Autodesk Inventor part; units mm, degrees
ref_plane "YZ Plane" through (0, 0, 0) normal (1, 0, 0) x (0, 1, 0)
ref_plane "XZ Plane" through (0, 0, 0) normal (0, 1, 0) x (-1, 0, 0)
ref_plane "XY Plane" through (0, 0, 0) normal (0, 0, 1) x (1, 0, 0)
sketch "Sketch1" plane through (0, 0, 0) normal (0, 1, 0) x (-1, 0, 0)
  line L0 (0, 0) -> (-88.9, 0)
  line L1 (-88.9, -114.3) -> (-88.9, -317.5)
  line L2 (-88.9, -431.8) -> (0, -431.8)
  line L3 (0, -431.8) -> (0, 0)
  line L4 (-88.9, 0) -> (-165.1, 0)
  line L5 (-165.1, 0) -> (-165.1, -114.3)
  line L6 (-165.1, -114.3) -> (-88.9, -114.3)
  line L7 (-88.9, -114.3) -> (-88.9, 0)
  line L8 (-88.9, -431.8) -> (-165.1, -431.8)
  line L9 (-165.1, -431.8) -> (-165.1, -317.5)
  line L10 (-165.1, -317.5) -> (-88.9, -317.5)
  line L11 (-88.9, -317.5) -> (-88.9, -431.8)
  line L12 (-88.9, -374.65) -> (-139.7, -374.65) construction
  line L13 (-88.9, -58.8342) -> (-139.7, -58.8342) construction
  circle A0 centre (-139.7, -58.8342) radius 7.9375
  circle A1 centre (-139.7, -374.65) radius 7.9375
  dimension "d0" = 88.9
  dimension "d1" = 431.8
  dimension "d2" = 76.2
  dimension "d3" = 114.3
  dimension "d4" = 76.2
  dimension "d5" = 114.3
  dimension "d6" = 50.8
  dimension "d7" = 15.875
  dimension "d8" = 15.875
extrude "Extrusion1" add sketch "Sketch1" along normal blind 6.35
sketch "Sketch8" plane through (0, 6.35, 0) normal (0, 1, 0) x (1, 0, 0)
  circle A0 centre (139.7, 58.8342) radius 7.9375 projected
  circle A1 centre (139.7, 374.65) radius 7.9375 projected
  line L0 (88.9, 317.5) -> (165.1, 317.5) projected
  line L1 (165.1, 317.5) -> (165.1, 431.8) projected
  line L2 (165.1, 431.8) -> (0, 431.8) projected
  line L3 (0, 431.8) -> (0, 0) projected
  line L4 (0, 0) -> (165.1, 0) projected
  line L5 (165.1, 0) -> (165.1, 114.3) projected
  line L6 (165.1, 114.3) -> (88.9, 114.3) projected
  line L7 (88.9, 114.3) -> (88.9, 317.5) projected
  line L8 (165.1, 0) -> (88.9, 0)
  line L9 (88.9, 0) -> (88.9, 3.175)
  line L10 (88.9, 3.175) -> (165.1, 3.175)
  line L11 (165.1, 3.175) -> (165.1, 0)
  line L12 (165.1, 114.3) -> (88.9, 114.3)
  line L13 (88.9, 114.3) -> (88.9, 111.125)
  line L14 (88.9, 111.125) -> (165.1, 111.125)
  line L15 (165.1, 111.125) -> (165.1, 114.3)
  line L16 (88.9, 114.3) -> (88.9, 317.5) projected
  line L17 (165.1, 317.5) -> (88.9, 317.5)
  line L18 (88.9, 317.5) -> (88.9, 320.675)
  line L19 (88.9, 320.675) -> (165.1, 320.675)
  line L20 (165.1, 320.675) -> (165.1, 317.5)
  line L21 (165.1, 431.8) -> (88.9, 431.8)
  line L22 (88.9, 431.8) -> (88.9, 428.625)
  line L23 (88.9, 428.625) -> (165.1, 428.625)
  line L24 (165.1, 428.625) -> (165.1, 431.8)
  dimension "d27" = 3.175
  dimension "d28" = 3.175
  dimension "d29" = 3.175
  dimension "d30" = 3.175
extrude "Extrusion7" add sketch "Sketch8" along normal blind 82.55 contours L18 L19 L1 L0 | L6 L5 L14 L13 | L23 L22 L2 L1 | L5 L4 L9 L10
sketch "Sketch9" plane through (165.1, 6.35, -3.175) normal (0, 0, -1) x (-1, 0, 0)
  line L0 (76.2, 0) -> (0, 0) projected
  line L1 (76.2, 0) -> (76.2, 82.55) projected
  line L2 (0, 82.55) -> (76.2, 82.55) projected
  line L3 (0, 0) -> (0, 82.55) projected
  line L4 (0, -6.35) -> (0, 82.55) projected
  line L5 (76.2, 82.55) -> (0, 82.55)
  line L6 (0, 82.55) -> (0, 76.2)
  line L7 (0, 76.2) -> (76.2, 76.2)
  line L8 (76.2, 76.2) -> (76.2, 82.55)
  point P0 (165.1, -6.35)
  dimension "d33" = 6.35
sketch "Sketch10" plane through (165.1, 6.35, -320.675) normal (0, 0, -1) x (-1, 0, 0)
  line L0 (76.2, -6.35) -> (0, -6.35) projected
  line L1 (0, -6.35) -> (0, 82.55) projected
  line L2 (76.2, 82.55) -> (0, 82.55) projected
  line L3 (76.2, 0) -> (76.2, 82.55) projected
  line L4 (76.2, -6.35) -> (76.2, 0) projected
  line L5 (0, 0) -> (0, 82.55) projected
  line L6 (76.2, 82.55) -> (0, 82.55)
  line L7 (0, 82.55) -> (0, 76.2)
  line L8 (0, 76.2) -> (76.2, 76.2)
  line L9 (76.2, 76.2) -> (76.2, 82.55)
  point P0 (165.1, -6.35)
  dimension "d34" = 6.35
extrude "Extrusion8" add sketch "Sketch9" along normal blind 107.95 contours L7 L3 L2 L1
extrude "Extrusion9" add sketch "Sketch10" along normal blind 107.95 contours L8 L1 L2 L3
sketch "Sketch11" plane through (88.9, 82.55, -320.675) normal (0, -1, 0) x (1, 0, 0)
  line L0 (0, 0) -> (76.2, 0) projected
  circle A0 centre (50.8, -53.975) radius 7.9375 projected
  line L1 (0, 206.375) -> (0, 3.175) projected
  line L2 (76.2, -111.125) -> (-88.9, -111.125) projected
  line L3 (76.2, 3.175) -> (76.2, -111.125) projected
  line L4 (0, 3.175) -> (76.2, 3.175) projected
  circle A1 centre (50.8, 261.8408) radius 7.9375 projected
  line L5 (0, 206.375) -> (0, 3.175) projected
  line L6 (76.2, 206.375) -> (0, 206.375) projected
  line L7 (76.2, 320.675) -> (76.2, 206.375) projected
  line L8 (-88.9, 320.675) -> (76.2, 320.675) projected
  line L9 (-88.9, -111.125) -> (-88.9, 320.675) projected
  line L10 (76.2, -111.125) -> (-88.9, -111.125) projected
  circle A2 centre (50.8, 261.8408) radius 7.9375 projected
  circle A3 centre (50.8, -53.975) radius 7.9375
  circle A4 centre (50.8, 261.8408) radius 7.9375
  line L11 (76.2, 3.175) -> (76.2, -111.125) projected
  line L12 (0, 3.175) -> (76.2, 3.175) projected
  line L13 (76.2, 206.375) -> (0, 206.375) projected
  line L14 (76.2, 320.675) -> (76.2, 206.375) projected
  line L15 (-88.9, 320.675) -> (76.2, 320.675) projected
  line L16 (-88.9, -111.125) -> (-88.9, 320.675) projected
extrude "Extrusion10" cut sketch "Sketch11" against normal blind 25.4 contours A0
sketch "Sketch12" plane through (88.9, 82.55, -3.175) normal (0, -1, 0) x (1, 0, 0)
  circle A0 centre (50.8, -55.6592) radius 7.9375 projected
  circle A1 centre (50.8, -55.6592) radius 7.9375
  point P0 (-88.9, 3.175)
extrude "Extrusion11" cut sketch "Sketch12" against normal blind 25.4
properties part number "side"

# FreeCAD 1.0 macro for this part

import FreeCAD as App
import Part
import Sketcher
Q = App.Units.Quantity


def add_polygon(sketch, points):
    """Adds a closed chain of lines whose ends are joined by coincident constraints."""
    first, n = sketch.GeometryCount, len(points)
    for a, b in zip(points, points[1:] + points[:1]):
        sketch.addGeometry(Part.LineSegment(App.Vector(*a, 0), App.Vector(*b, 0)), False)
    for i in range(n):
        sketch.addConstraint(Sketcher.Constraint("Coincident", first + i, 2, first + (i + 1) % n, 1))

doc = App.newDocument("Part")
params = doc.addObject("Spreadsheet::Sheet", "Params")
for row, (alias, value) in enumerate([
    ("sketch1_width", "3 in"),
    ("sketch1_height", "17 in"),
    ("sketch1_diameter", "0.625 in"),
    ("sketch1_height2", "4.5 in"),
    ("pad1_length", "0.25 in"),
    ("sketch2_width", "3 in"),
    ("sketch2_height", "0.125 in"),
    ("pad2_length", "3.25 in"),
    ("sketch3_height", "0.25 in"),
    ("sketch3_width", "3 in"),
    ("pad3_length", "4.25 in"),
    ("sketch4_height", "0.25 in"),
    ("sketch4_width", "3 in"),
    ("pad4_length", "4.25 in"),
    ("sketch5_diameter", "0.625 in"),
    ("pocket1_length", "1 in"),
    ("sketch6_diameter", "0.625 in"),
    ("pocket2_length", "1 in"),
], start=1):
    params.set(f"A{row}", alias)
    params.set(f"B{row}", "=" + value)
    params.setAlias(f"B{row}", alias)

body = doc.addObject("PartDesign::Body", "Body")

# Sketch on XZ plane
sketch1 = doc.addObject("Sketcher::SketchObject", "Sketch")
body.addObject(sketch1)
sketch1.AttachmentSupport = (doc.XZ_Plane, [""])
sketch1.MapMode = "FlatFace"
add_polygon(sketch1, [(0, -432), (0, 0), (165, 0), (165, -114), (89, -114), (89, -318), (165, -318), (165, -432)])  # lines 0-7
sketch1.addGeometry(Part.Circle(App.Vector(140, -375, 0), App.Vector(0, 0, 1), 8), False)  # 8
sketch1.addGeometry(Part.Circle(App.Vector(140, -59, 0), App.Vector(0, 0, 1), 8), False)  # 9
sketch1.addConstraint(Sketcher.Constraint("Vertical", 0))
sketch1.addConstraint(Sketcher.Constraint("Horizontal", 1))
sketch1.addConstraint(Sketcher.Constraint("Vertical", 2))
sketch1.addConstraint(Sketcher.Constraint("Horizontal", 3))
sketch1.addConstraint(Sketcher.Constraint("Vertical", 4))
sketch1.addConstraint(Sketcher.Constraint("Horizontal", 5))
sketch1.addConstraint(Sketcher.Constraint("Vertical", 6))
sketch1.addConstraint(Sketcher.Constraint("Horizontal", 7))
sketch1.addConstraint(Sketcher.Constraint("Coincident", 0, 2, -1, 1))
sketch1.addConstraint(Sketcher.Constraint("Equal", 8, 9))
sketch1.addConstraint(Sketcher.Constraint("Vertical", 8, 3, 9, 3))
sketch1.addConstraint(Sketcher.Constraint("Vertical", 2, 2, 5, 2))
sketch1.addConstraint(Sketcher.Constraint("Equal", 2, 6))
sketch1.addConstraint(Sketcher.Constraint("DistanceX", 3, 2, 3, 1, Q("3 in")))
sketch1.addConstraint(Sketcher.Constraint("DistanceY", 0, 1, 0, 2, Q("17 in")))
sketch1.addConstraint(Sketcher.Constraint("Diameter", 8, Q("0.625 in")))
sketch1.addConstraint(Sketcher.Constraint("DistanceY", 2, 2, 2, 1, Q("4.5 in")))
sketch1.addConstraint(Sketcher.Constraint("DistanceX", 3, 2, 9, 3, Q("2 in")))
sketch1.addConstraint(Sketcher.Constraint("DistanceX", -1, 1, 3, 2, Q("3.5 in")))
sketch1.addConstraint(Sketcher.Constraint("DistanceY", 8, 3, -1, 1, Q("14.75 in")))
sketch1.addConstraint(Sketcher.Constraint("DistanceY", 9, 3, -1, 1, Q("2.3163 in")))
sketch1.setExpression("Constraints[21]", "Params.sketch1_width")
sketch1.setExpression("Constraints[22]", "Params.sketch1_height")
sketch1.setExpression("Constraints[23]", "Params.sketch1_diameter")
sketch1.setExpression("Constraints[24]", "Params.sketch1_height2")
pad1 = doc.addObject("PartDesign::Pad", "Pad")
body.addObject(pad1)
pad1.Profile = sketch1
pad1.setExpression("Length", "Params.pad1_length")
pad1.Reversed = True

# Sketch on XZ plane
sketch2 = doc.addObject("Sketcher::SketchObject", "Sketch001")
body.addObject(sketch2)
sketch2.AttachmentSupport = (doc.XZ_Plane, [""])
sketch2.MapMode = "FlatFace"
sketch2.AttachmentOffset = App.Placement(App.Vector(0, 0, -0.25 * 25.4), App.Rotation())
add_polygon(sketch2, [(88.9, -320.7), (88.9, -317.5), (165.1, -317.5), (165.1, -320.7)])  # lines 0-3
add_polygon(sketch2, [(165.1, -114.3), (88.9, -114.3), (88.9, -111.1), (165.1, -111.1)])  # lines 4-7
add_polygon(sketch2, [(88.9, -428.6), (165.1, -428.6), (165.1, -431.8), (88.9, -431.8)])  # lines 8-11
add_polygon(sketch2, [(165.1, 0), (165.1, -3.2), (88.9, -3.2), (88.9, 0)])  # lines 12-15
sketch2.addConstraint(Sketcher.Constraint("Vertical", 0))
sketch2.addConstraint(Sketcher.Constraint("Horizontal", 1))
sketch2.addConstraint(Sketcher.Constraint("Vertical", 2))
sketch2.addConstraint(Sketcher.Constraint("Horizontal", 3))
sketch2.addConstraint(Sketcher.Constraint("Horizontal", 4))
sketch2.addConstraint(Sketcher.Constraint("Vertical", 5))
sketch2.addConstraint(Sketcher.Constraint("Horizontal", 6))
sketch2.addConstraint(Sketcher.Constraint("Vertical", 7))
sketch2.addConstraint(Sketcher.Constraint("Horizontal", 8))
sketch2.addConstraint(Sketcher.Constraint("Vertical", 9))
sketch2.addConstraint(Sketcher.Constraint("Horizontal", 10))
sketch2.addConstraint(Sketcher.Constraint("Vertical", 11))
sketch2.addConstraint(Sketcher.Constraint("Vertical", 12))
sketch2.addConstraint(Sketcher.Constraint("Horizontal", 13))
sketch2.addConstraint(Sketcher.Constraint("Vertical", 14))
sketch2.addConstraint(Sketcher.Constraint("Horizontal", 15))
sketch2.addConstraint(Sketcher.Constraint("PointOnObject", 14, 2, -1))
sketch2.addConstraint(Sketcher.Constraint("Vertical", 3, 2, 4, 2))
sketch2.addConstraint(Sketcher.Constraint("Vertical", 2, 2, 6, 2))
sketch2.addConstraint(Sketcher.Constraint("Vertical", 7, 2, 8, 2))
sketch2.addConstraint(Sketcher.Constraint("Vertical", 5, 2, 10, 2))
sketch2.addConstraint(Sketcher.Constraint("Vertical", 9, 2, 12, 2))
sketch2.addConstraint(Sketcher.Constraint("Vertical", 11, 2, 13, 2))
sketch2.addConstraint(Sketcher.Constraint("Equal", 2, 5))
sketch2.addConstraint(Sketcher.Constraint("Equal", 7, 9))
sketch2.addConstraint(Sketcher.Constraint("Equal", 11, 12))
sketch2.addConstraint(Sketcher.Constraint("DistanceX", 1, 1, 1, 2, Q("3 in")))
sketch2.addConstraint(Sketcher.Constraint("DistanceY", 0, 1, 0, 2, Q("0.125 in")))
sketch2.addConstraint(Sketcher.Constraint("DistanceY", 9, 2, -1, 1, Q("17 in")))
sketch2.addConstraint(Sketcher.Constraint("DistanceY", 0, 2, 4, 2, Q("8 in")))
sketch2.addConstraint(Sketcher.Constraint("DistanceX", -1, 1, 0, 2, Q("3.5 in")))
sketch2.addConstraint(Sketcher.Constraint("DistanceY", 0, 2, -1, 1, Q("12.5 in")))
sketch2.setExpression("Constraints[42]", "Params.sketch2_width")
sketch2.setExpression("Constraints[43]", "Params.sketch2_height")
pad2 = doc.addObject("PartDesign::Pad", "Pad001")
body.addObject(pad2)
pad2.Profile = sketch2
pad2.setExpression("Length", "Params.pad2_length")
pad2.Reversed = True

# Sketch on XY plane
sketch3 = doc.addObject("Sketcher::SketchObject", "Sketch002")
body.addObject(sketch3)
sketch3.AttachmentSupport = (doc.XY_Plane, [""])
sketch3.MapMode = "FlatFace"
sketch3.AttachmentOffset = App.Placement(App.Vector(0, 0, -0.125 * 25.4), App.Rotation())
add_polygon(sketch3, [(165, 83), (89, 83), (89, 89), (165, 89)])  # lines 0-3
sketch3.addConstraint(Sketcher.Constraint("Horizontal", 0))
sketch3.addConstraint(Sketcher.Constraint("Vertical", 1))
sketch3.addConstraint(Sketcher.Constraint("Horizontal", 2))
sketch3.addConstraint(Sketcher.Constraint("Vertical", 3))
sketch3.addConstraint(Sketcher.Constraint("DistanceY", 1, 1, 1, 2, Q("0.25 in")))
sketch3.addConstraint(Sketcher.Constraint("DistanceX", 0, 2, 0, 1, Q("3 in")))
sketch3.addConstraint(Sketcher.Constraint("DistanceX", -1, 1, 0, 2, Q("3.5 in")))
sketch3.addConstraint(Sketcher.Constraint("DistanceY", -1, 1, 1, 2, Q("3.5 in")))
sketch3.setExpression("Constraints[8]", "Params.sketch3_height")
sketch3.setExpression("Constraints[9]", "Params.sketch3_width")
pad3 = doc.addObject("PartDesign::Pad", "Pad002")
body.addObject(pad3)
pad3.Profile = sketch3
pad3.setExpression("Length", "Params.pad3_length")
pad3.Reversed = True

# Sketch on XY plane
sketch4 = doc.addObject("Sketcher::SketchObject", "Sketch003")
body.addObject(sketch4)
sketch4.AttachmentSupport = (doc.XY_Plane, [""])
sketch4.MapMode = "FlatFace"
sketch4.AttachmentOffset = App.Placement(App.Vector(0, 0, -12.625 * 25.4), App.Rotation())
add_polygon(sketch4, [(165, 83), (89, 83), (89, 89), (165, 89)])  # lines 0-3
sketch4.addConstraint(Sketcher.Constraint("Horizontal", 0))
sketch4.addConstraint(Sketcher.Constraint("Vertical", 1))
sketch4.addConstraint(Sketcher.Constraint("Horizontal", 2))
sketch4.addConstraint(Sketcher.Constraint("Vertical", 3))
sketch4.addConstraint(Sketcher.Constraint("DistanceY", 1, 1, 1, 2, Q("0.25 in")))
sketch4.addConstraint(Sketcher.Constraint("DistanceX", 0, 2, 0, 1, Q("3 in")))
sketch4.addConstraint(Sketcher.Constraint("DistanceX", -1, 1, 0, 2, Q("3.5 in")))
sketch4.addConstraint(Sketcher.Constraint("DistanceY", -1, 1, 1, 2, Q("3.5 in")))
sketch4.setExpression("Constraints[8]", "Params.sketch4_height")
sketch4.setExpression("Constraints[9]", "Params.sketch4_width")
pad4 = doc.addObject("PartDesign::Pad", "Pad003")
body.addObject(pad4)
pad4.Profile = sketch4
pad4.setExpression("Length", "Params.pad4_length")
pad4.Reversed = True

# Sketch on XZ plane
sketch5 = doc.addObject("Sketcher::SketchObject", "Sketch004")
body.addObject(sketch5)
sketch5.AttachmentSupport = (doc.XZ_Plane, [""])
sketch5.MapMode = "FlatFace"
sketch5.AttachmentOffset = App.Placement(App.Vector(0, 0, -3.25 * 25.4), App.Rotation())
sketch5.addGeometry(Part.Circle(App.Vector(140, -375, 0), App.Vector(0, 0, 1), 8), False)
sketch5.addConstraint(Sketcher.Constraint("Diameter", 0, Q("0.625 in")))
sketch5.addConstraint(Sketcher.Constraint("DistanceX", -1, 1, 0, 3, Q("5.5 in")))
sketch5.addConstraint(Sketcher.Constraint("DistanceY", 0, 3, -1, 1, Q("14.75 in")))
sketch5.setExpression("Constraints[0]", "Params.sketch5_diameter")
pocket1 = doc.addObject("PartDesign::Pocket", "Pocket")
body.addObject(pocket1)
pocket1.Profile = sketch5
pocket1.setExpression("Length", "Params.pocket1_length")

# Sketch on XZ plane
sketch6 = doc.addObject("Sketcher::SketchObject", "Sketch005")
body.addObject(sketch6)
sketch6.AttachmentSupport = (doc.XZ_Plane, [""])
sketch6.MapMode = "FlatFace"
sketch6.AttachmentOffset = App.Placement(App.Vector(0, 0, -3.25 * 25.4), App.Rotation())
sketch6.addGeometry(Part.Circle(App.Vector(140, -59, 0), App.Vector(0, 0, 1), 8), False)
sketch6.addConstraint(Sketcher.Constraint("Diameter", 0, Q("0.625 in")))
sketch6.addConstraint(Sketcher.Constraint("DistanceX", -1, 1, 0, 3, Q("5.5 in")))
sketch6.addConstraint(Sketcher.Constraint("DistanceY", 0, 3, -1, 1, Q("2.3163 in")))
sketch6.setExpression("Constraints[0]", "Params.sketch6_diameter")
pocket2 = doc.addObject("PartDesign::Pocket", "Pocket001")
body.addObject(pocket2)
pocket2.Profile = sketch6
pocket2.setExpression("Length", "Params.pocket2_length")

doc.recompute()
